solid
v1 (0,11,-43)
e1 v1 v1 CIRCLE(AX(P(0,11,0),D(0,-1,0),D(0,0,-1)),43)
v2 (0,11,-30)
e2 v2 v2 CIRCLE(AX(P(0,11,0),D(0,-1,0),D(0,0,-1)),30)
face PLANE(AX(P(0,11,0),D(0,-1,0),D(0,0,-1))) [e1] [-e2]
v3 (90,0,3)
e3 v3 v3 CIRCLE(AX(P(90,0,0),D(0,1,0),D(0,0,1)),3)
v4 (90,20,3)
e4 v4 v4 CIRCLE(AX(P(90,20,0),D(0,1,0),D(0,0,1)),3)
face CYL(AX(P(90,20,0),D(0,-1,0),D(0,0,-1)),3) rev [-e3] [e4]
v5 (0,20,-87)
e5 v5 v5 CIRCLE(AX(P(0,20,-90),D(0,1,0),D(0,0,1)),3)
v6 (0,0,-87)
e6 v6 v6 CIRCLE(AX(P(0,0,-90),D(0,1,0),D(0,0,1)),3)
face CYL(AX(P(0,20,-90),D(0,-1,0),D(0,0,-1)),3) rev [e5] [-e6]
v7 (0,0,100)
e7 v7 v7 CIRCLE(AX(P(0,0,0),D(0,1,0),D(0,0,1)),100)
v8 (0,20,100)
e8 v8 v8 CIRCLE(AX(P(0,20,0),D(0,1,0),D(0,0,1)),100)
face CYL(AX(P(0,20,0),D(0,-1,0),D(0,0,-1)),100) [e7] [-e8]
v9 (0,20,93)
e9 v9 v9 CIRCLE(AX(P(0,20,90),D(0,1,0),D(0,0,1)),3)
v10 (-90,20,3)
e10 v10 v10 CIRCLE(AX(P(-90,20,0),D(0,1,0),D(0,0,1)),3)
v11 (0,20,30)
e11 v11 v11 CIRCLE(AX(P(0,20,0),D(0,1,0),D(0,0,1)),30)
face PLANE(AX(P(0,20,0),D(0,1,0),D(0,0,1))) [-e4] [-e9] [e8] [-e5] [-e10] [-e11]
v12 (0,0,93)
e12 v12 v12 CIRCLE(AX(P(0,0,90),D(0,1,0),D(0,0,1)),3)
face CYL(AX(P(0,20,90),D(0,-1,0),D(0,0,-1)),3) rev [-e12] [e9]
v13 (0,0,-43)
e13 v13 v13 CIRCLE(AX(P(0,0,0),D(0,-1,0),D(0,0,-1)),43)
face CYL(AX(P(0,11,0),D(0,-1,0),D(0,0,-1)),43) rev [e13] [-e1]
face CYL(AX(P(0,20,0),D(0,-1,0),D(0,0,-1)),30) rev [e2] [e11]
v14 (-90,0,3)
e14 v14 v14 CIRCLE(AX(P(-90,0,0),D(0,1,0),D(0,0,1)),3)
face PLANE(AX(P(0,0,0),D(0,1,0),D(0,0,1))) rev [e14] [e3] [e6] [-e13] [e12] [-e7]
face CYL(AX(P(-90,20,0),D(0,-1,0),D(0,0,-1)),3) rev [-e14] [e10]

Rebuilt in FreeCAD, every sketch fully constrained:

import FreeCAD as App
import Part
import Sketcher
Q = App.Units.Quantity

doc = App.newDocument("Part")
params = doc.addObject("Spreadsheet::Sheet", "Params")
for row, (alias, value) in enumerate([
    ("sketch1_diameter", "200 mm"),
    ("sketch1_diameter2", "6 mm"),
    ("sketch1_diameter3", "60 mm"),
    ("pad1_length", "20 mm"),
    ("sketch2_diameter", "86 mm"),
    ("pocket1_length", "11 mm"),
], start=1):
    params.set(f"A{row}", alias)
    params.set(f"B{row}", "=" + value)
    params.setAlias(f"B{row}", alias)

body = doc.addObject("PartDesign::Body", "Body")

# Sketch on XZ plane
sketch1 = body.newObject("Sketcher::SketchObject", "Sketch")
sketch1.AttachmentSupport = (doc.getObject("XZ_Plane"), [""])
sketch1.MapMode = "FlatFace"
sketch1.addGeometry(Part.Circle(App.Vector(0, 0, 0), App.Vector(0, 0, 1), 100), False)
sketch1.addGeometry(Part.Circle(App.Vector(0, -90, 0), App.Vector(0, 0, 1), 3), False)
sketch1.addGeometry(Part.Circle(App.Vector(-90, 0, 0), App.Vector(0, 0, 1), 3), False)
sketch1.addGeometry(Part.Circle(App.Vector(90, 0, 0), App.Vector(0, 0, 1), 3), False)
sketch1.addGeometry(Part.Circle(App.Vector(0, 0, 0), App.Vector(0, 0, 1), 30), False)
sketch1.addGeometry(Part.Circle(App.Vector(0, 90, 0), App.Vector(0, 0, 1), 3), False)
sketch1.addConstraint(Sketcher.Constraint("Coincident", 0, 3, -1, 1))
sketch1.addConstraint(Sketcher.Constraint("Coincident", 4, 3, -1, 1))
sketch1.addConstraint(Sketcher.Constraint("Equal", 1, 2))
sketch1.addConstraint(Sketcher.Constraint("Equal", 2, 3))
sketch1.addConstraint(Sketcher.Constraint("Equal", 3, 5))
sketch1.addConstraint(Sketcher.Constraint("Symmetric", 2, 3, 3, 3, -1, 1))
sketch1.addConstraint(Sketcher.Constraint("Symmetric", 1, 3, 5, 3, -1, 1))
sketch1.addConstraint(Sketcher.Constraint("PointOnObject", 1, 3, -2))
sketch1.addConstraint(Sketcher.Constraint("PointOnObject", 2, 3, -1))
sketch1.addConstraint(Sketcher.Constraint("Diameter", 0, Q("200 mm")))
sketch1.addConstraint(Sketcher.Constraint("Diameter", 1, Q("6 mm")))
sketch1.addConstraint(Sketcher.Constraint("Diameter", 4, Q("60 mm")))
sketch1.addConstraint(Sketcher.Constraint("DistanceY", 1, 3, -1, 1, Q("90 mm")))
sketch1.addConstraint(Sketcher.Constraint("DistanceX", 2, 3, -1, 1, Q("90 mm")))
sketch1.setExpression("Constraints[9]", "Params.sketch1_diameter")
sketch1.setExpression("Constraints[10]", "Params.sketch1_diameter2")
sketch1.setExpression("Constraints[11]", "Params.sketch1_diameter3")
pad1 = body.newObject("PartDesign::Pad", "Pad")
pad1.Profile = sketch1
pad1.setExpression("Length", "Params.pad1_length")
pad1.Reversed = True

# Sketch on XZ plane
sketch2 = body.newObject("Sketcher::SketchObject", "Sketch001")
sketch2.AttachmentSupport = (doc.getObject("XZ_Plane"), [""])
sketch2.MapMode = "FlatFace"
sketch2.addGeometry(Part.Circle(App.Vector(0, 0, 0), App.Vector(0, 0, 1), 43), False)
sketch2.addConstraint(Sketcher.Constraint("Coincident", 0, 3, -1, 1))
sketch2.addConstraint(Sketcher.Constraint("Diameter", 0, Q("86 mm")))
sketch2.setExpression("Constraints[1]", "Params.sketch2_diameter")
pocket1 = body.newObject("PartDesign::Pocket", "Pocket")
pocket1.Profile = sketch2
pocket1.setExpression("Length", "Params.pocket1_length")

doc.recompute()
